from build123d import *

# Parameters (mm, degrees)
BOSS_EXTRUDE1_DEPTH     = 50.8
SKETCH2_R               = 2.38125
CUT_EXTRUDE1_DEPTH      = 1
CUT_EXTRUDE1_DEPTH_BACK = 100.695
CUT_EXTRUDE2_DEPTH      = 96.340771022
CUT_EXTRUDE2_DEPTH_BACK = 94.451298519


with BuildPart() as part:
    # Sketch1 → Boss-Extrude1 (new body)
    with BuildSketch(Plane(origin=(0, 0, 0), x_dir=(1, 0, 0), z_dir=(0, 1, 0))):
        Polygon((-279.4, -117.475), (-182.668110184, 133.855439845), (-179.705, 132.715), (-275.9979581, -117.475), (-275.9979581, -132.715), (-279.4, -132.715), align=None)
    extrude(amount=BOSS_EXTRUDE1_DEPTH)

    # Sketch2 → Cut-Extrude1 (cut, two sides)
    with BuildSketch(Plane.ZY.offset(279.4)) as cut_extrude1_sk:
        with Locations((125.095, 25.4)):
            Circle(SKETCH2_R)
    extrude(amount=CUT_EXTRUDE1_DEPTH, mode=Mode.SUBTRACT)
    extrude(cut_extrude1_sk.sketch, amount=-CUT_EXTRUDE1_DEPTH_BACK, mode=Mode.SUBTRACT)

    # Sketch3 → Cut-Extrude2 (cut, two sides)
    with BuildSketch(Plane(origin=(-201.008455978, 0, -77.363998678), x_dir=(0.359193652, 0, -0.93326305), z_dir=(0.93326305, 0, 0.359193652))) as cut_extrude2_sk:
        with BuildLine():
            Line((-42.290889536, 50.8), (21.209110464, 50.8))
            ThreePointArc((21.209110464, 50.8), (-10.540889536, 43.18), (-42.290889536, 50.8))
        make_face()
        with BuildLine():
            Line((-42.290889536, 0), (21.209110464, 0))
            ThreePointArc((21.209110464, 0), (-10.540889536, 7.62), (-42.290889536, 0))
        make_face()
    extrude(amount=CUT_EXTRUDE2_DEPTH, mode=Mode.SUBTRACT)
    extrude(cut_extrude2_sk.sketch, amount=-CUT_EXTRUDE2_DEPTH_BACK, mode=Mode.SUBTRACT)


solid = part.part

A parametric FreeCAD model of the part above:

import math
import FreeCAD as App
import Part
import Sketcher
from FreeCAD import Vector
Q = App.Units.Quantity

doc = App.newDocument("Part")
params = doc.addObject("Spreadsheet::Sheet", "Params")
for row, (alias, value) in enumerate([
    ("sketch1_height", "0.6 in"),
    ("sketch1_length", "0.125 in"),
    ("pad1_length", "2 in"),
    ("sketch2_diameter", "0.1875 in"),
    ("sketch3_width", "2.5 in"),
], start=1):
    params.set(f"A{row}", alias)
    params.set(f"B{row}", "=" + value)
    params.setAlias(f"B{row}", alias)

body = doc.addObject("PartDesign::Body", "Body")

# Sketch on XZ plane
sketch1 = doc.addObject("Sketcher::SketchObject", "Sketch")
body.addObject(sketch1)
sketch1.AttachmentSupport = (doc.XZ_Plane, [""])
sketch1.MapMode = "FlatFace"
sketch1.addGeometry(Part.LineSegment(Vector(-182.7, -133.9, 0), Vector(-279.4, 117.5, 0)), False)
sketch1.addGeometry(Part.LineSegment(Vector(-279.4, 117.5, 0), Vector(-279.4, 132.7, 0)), False)
sketch1.addGeometry(Part.LineSegment(Vector(-279.4, 132.7, 0), Vector(-276, 132.7, 0)), False)
sketch1.addGeometry(Part.LineSegment(Vector(-276, 132.7, 0), Vector(-276, 117.5, 0)), False)
sketch1.addGeometry(Part.LineSegment(Vector(-276, 117.5, 0), Vector(-179.7, -132.7, 0)), False)
sketch1.addGeometry(Part.LineSegment(Vector(-179.7, -132.7, 0), Vector(-182.7, -133.9, 0)), False)
sketch1.addConstraint(Sketcher.Constraint("Coincident", 0, 2, 1, 1))
sketch1.addConstraint(Sketcher.Constraint("Coincident", 1, 2, 2, 1))
sketch1.addConstraint(Sketcher.Constraint("Coincident", 2, 2, 3, 1))
sketch1.addConstraint(Sketcher.Constraint("Coincident", 3, 2, 4, 1))
sketch1.addConstraint(Sketcher.Constraint("Coincident", 4, 2, 5, 1))
sketch1.addConstraint(Sketcher.Constraint("Coincident", 5, 2, 0, 1))
sketch1.addConstraint(Sketcher.Constraint("Vertical", 1))
sketch1.addConstraint(Sketcher.Constraint("Horizontal", 2))
sketch1.addConstraint(Sketcher.Constraint("Vertical", 3))
sketch1.addConstraint(Sketcher.Constraint("Parallel", 0, 4))
sketch1.addConstraint(Sketcher.Constraint("Perpendicular", 4, 5))
sketch1.addConstraint(Sketcher.Constraint("Horizontal", 0, 2, 3, 2))
sketch1.addConstraint(Sketcher.Constraint("DistanceY", 1, 1, 1, 2, Q("0.6 in")))
sketch1.addConstraint(Sketcher.Constraint("DistanceX", 0, 2, -1, 1, Q("11 in")))
sketch1.addConstraint(Sketcher.Constraint("DistanceY", 4, 2, 3, 2, Q("9.85 in")))
sketch1.addConstraint(Sketcher.Constraint("Distance", 5, Q("0.125 in")))
sketch1.addConstraint(Sketcher.Constraint("DistanceY", -1, 1, 0, 2, Q("4.625 in")))
sketch1.addConstraint(Sketcher.Constraint("DistanceX", 4, 2, -1, 1, Q("7.075 in")))
sketch1.setExpression("Constraints[12]", "Params.sketch1_height")
sketch1.setExpression("Constraints[15]", "Params.sketch1_length")
pad1 = doc.addObject("PartDesign::Pad", "Pad")
body.addObject(pad1)
pad1.Profile = sketch1
pad1.setExpression("Length", "Params.pad1_length")
pad1.Reversed = True

# Sketch on YZ plane
sketch2 = doc.addObject("Sketcher::SketchObject", "Sketch001")
body.addObject(sketch2)
sketch2.AttachmentSupport = (doc.YZ_Plane, [""])
sketch2.MapMode = "FlatFace"
sketch2.AttachmentOffset = App.Placement(Vector(0, 0, -11 * 25.4), App.Rotation())
sketch2.addGeometry(Part.Circle(Vector(25.4, 125.1, 0), Vector(0, 0, 1), 2.4), False)
sketch2.addConstraint(Sketcher.Constraint("Diameter", 0, Q("0.1875 in")))
sketch2.addConstraint(Sketcher.Constraint("DistanceX", -1, 1, 0, 3, Q("1 in")))
sketch2.addConstraint(Sketcher.Constraint("DistanceY", -1, 1, 0, 3, Q("4.925 in")))
sketch2.setExpression("Constraints[0]", "Params.sketch2_diameter")
pocket1 = doc.addObject("PartDesign::Pocket", "Pocket")
body.addObject(pocket1)
pocket1.Profile = sketch2
pocket1.Type = "ThroughAll"
pocket1.Midplane = True

# Sketch on an angled plane
sketch3 = doc.addObject("Sketcher::SketchObject", "Sketch002")
body.addObject(sketch3)
sketch3.Placement = App.Placement(Vector(-201.008456, 0, -77.363999), App.Rotation(Vector(0.359193652, 0, -0.93326305), Vector(0, 1, 0), Vector(0.93326305, 0, 0.359193652), "ZXY"))
sketch3.addGeometry(Part.LineSegment(Vector(21, 51, 0), Vector(-42, 51, 0)), False)
sketch3.addGeometry(Part.ArcOfCircle(Part.Circle(Vector(-11, 113, 0), Vector(0, 0, 1), 70), math.radians(-117), math.radians(-63)), False)
sketch3.addGeometry(Part.LineSegment(Vector(-42, 0, 0), Vector(21, 0, 0)), False)
sketch3.addGeometry(Part.ArcOfCircle(Part.Circle(Vector(-11, -62, 0), Vector(0, 0, 1), 70), math.radians(63), math.radians(117)), False)
sketch3.addConstraint(Sketcher.Constraint("Coincident", 0, 1, 1, 2))
sketch3.addConstraint(Sketcher.Constraint("Coincident", 1, 1, 0, 2))
sketch3.addConstraint(Sketcher.Constraint("Coincident", 2, 1, 3, 2))
sketch3.addConstraint(Sketcher.Constraint("Coincident", 3, 1, 2, 2))
sketch3.addConstraint(Sketcher.Constraint("Horizontal", 0))
sketch3.addConstraint(Sketcher.Constraint("Horizontal", 2))
sketch3.addConstraint(Sketcher.Constraint("Equal", 1, 3))
sketch3.addConstraint(Sketcher.Constraint("PointOnObject", 2, 1, -1))
sketch3.addConstraint(Sketcher.Constraint("Vertical", 1, 3, 3, 3))
sketch3.addConstraint(Sketcher.Constraint("Vertical", 1, 1, 2, 1))
sketch3.addConstraint(Sketcher.Constraint("DistanceX", 0, 2, 0, 1, Q("2.5 in")))
sketch3.addConstraint(Sketcher.Constraint("DistanceY", -1, 1, 0, 1, Q("2 in")))
sketch3.addConstraint(Sketcher.Constraint("Radius", 1, Q("69.955833 mm")))
sketch3.addConstraint(Sketcher.Constraint("DistanceX", 1, 3, -1, 1, Q("10.54089 mm")))
sketch3.setExpression("Constraints[10]", "Params.sketch3_width")
pocket2 = doc.addObject("PartDesign::Pocket", "Pocket001")
body.addObject(pocket2)
pocket2.Profile = sketch3
pocket2.Type = "ThroughAll"
pocket2.Midplane = True

doc.recompute()
